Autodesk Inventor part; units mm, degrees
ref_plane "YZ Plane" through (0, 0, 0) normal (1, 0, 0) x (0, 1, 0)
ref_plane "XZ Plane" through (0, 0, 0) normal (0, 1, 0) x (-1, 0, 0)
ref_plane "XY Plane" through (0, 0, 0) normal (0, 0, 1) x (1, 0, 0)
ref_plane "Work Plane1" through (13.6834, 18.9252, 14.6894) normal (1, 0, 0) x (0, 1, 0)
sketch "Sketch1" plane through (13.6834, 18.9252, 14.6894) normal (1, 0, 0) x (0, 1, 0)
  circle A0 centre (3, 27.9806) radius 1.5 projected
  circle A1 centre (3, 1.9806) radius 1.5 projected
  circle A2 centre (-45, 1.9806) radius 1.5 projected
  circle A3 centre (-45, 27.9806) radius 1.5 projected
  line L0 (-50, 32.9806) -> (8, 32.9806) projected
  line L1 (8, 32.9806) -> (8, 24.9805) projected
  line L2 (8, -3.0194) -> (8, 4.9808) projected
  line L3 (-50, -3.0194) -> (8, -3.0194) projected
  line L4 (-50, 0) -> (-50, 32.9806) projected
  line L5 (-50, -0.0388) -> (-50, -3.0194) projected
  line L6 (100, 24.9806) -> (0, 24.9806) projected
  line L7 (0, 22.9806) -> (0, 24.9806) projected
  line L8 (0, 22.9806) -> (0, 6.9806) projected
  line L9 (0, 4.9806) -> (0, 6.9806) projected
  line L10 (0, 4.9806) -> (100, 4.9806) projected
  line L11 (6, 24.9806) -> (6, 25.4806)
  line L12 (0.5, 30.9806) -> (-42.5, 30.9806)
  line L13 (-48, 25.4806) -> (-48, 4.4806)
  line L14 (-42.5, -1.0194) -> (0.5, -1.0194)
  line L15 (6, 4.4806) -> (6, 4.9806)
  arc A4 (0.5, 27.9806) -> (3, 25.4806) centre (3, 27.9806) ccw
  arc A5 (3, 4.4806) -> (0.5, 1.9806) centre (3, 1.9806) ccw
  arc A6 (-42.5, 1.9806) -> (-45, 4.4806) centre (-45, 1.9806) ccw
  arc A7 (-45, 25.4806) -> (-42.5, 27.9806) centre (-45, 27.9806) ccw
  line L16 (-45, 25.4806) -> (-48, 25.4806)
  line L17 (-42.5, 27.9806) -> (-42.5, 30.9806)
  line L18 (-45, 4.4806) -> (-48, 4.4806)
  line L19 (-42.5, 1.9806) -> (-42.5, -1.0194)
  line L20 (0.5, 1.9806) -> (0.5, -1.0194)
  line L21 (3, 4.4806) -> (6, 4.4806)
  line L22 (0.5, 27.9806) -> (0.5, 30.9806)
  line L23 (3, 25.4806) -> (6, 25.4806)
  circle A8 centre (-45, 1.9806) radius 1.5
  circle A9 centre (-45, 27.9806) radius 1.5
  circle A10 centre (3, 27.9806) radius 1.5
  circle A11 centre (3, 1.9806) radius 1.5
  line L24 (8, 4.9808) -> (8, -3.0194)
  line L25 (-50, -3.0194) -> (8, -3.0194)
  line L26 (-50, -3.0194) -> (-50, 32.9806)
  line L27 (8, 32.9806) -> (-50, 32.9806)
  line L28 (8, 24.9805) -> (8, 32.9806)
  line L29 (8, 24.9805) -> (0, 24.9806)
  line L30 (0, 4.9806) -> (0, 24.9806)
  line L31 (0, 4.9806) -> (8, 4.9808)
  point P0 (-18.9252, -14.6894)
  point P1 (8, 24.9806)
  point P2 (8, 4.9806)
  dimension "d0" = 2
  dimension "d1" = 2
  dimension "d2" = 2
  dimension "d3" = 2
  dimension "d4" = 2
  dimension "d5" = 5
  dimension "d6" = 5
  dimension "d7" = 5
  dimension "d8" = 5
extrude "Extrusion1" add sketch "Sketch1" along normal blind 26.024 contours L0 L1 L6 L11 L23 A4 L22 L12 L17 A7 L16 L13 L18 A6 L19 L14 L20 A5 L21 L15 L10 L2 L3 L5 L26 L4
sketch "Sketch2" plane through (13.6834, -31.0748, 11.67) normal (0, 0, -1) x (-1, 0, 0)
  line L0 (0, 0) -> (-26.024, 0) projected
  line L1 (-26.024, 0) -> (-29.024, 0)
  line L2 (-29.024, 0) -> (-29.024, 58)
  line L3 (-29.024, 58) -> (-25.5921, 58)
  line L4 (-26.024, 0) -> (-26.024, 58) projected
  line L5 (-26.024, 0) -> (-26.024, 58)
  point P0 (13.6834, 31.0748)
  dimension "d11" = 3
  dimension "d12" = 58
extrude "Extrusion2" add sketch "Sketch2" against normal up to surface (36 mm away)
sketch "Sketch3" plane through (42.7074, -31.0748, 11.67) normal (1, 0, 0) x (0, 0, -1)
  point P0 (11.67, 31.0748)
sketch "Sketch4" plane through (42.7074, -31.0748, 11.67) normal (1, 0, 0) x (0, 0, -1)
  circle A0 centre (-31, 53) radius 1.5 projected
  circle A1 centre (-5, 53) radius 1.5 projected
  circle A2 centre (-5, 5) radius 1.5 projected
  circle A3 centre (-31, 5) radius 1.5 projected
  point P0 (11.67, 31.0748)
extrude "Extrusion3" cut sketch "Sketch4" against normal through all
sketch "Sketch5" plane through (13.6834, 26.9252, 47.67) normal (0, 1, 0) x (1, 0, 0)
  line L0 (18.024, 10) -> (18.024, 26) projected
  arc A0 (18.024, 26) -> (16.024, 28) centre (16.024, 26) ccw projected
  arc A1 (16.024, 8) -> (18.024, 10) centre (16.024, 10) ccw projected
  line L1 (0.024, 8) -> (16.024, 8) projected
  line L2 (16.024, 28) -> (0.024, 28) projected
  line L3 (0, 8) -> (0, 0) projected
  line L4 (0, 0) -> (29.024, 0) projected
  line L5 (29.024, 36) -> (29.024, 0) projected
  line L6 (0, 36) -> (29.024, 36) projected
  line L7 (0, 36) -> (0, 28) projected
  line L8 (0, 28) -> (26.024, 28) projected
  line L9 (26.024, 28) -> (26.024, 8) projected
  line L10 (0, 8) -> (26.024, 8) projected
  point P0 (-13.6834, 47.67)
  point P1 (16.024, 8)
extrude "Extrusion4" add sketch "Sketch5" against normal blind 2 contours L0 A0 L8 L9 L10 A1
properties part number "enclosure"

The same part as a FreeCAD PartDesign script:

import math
import FreeCAD as App
import Part
import Sketcher

V = App.Vector

doc = App.newDocument("Part")
body = doc.addObject("PartDesign::Body", "Body")

# Sketch on YZ plane
sketch1 = body.newObject("Sketcher::SketchObject", "Sketch")
sketch1.AttachmentSupport = (doc.getObject("YZ_Plane"), [""])
sketch1.MapMode = "FlatFace"
sketch1.AttachmentOffset = App.Placement(V(0, 0, 13.6834), App.Rotation())
sketch1.addGeometry(Part.LineSegment(V(26.9, 47.7, 0), V(-31.1, 47.7, 0)), False)
sketch1.addGeometry(Part.LineSegment(V(-31.1, 47.7, 0), V(-31.1, 11.7, 0)), False)
sketch1.addGeometry(Part.LineSegment(V(-31.1, 11.7, 0), V(26.9, 11.7, 0)), False)
sketch1.addGeometry(Part.LineSegment(V(26.9, 11.7, 0), V(26.9, 19.7, 0)), False)
sketch1.addGeometry(Part.LineSegment(V(26.9, 19.7, 0), V(24.9, 19.7, 0)), False)
sketch1.addGeometry(Part.LineSegment(V(24.9, 19.7, 0), V(24.9, 19.2, 0)), False)
sketch1.addGeometry(Part.LineSegment(V(24.9, 19.2, 0), V(21.9, 19.2, 0)), False)
sketch1.addGeometry(Part.ArcOfCircle(Part.Circle(V(21.9, 16.7, 0), V(0, 0, 1), 2.5), math.radians(90), math.radians(180)), False)
sketch1.addGeometry(Part.LineSegment(V(19.4, 16.7, 0), V(19.4, 13.7, 0)), False)
sketch1.addGeometry(Part.LineSegment(V(19.4, 13.7, 0), V(-23.6, 13.7, 0)), False)
sketch1.addGeometry(Part.LineSegment(V(-23.6, 13.7, 0), V(-23.6, 16.7, 0)), False)
sketch1.addGeometry(Part.ArcOfCircle(Part.Circle(V(-26.1, 16.7, 0), V(0, 0, 1), 2.5), math.radians(0), math.radians(90)), False)
sketch1.addGeometry(Part.LineSegment(V(-26.1, 19.2, 0), V(-29.1, 19.2, 0)), False)
sketch1.addGeometry(Part.LineSegment(V(-29.1, 19.2, 0), V(-29.1, 40.2, 0)), False)
sketch1.addGeometry(Part.LineSegment(V(-29.1, 40.2, 0), V(-26.1, 40.2, 0)), False)
sketch1.addGeometry(Part.ArcOfCircle(Part.Circle(V(-26.1, 42.7, 0), V(0, 0, 1), 2.5), math.radians(-90), math.radians(0)), False)
sketch1.addGeometry(Part.LineSegment(V(-23.6, 42.7, 0), V(-23.6, 45.7, 0)), False)
sketch1.addGeometry(Part.LineSegment(V(-23.6, 45.7, 0), V(19.4, 45.7, 0)), False)
sketch1.addGeometry(Part.LineSegment(V(19.4, 45.7, 0), V(19.4, 42.7, 0)), False)
sketch1.addGeometry(Part.ArcOfCircle(Part.Circle(V(21.9, 42.7, 0), V(0, 0, 1), 2.5), math.radians(180), math.radians(270)), False)
sketch1.addGeometry(Part.LineSegment(V(21.9, 40.2, 0), V(24.9, 40.2, 0)), False)
sketch1.addGeometry(Part.LineSegment(V(24.9, 40.2, 0), V(24.9, 39.7, 0)), False)
sketch1.addGeometry(Part.LineSegment(V(24.9, 39.7, 0), V(26.9, 39.7, 0)), False)
sketch1.addGeometry(Part.LineSegment(V(26.9, 39.7, 0), V(26.9, 47.7, 0)), False)
sketch1.addGeometry(Part.Circle(V(-26.1, 16.7, 0), V(0, 0, 1), 1.5), False)
sketch1.addGeometry(Part.Circle(V(21.9, 16.7, 0), V(0, 0, 1), 1.5), False)
sketch1.addGeometry(Part.Circle(V(-26.1, 42.7, 0), V(0, 0, 1), 1.5), False)
sketch1.addGeometry(Part.Circle(V(21.9, 42.7, 0), V(0, 0, 1), 1.5), False)
sketch1.addConstraint(Sketcher.Constraint("Coincident", 0, 2, 1, 1))
sketch1.addConstraint(Sketcher.Constraint("Coincident", 1, 2, 2, 1))
sketch1.addConstraint(Sketcher.Constraint("Coincident", 2, 2, 3, 1))
sketch1.addConstraint(Sketcher.Constraint("Coincident", 3, 2, 4, 1))
sketch1.addConstraint(Sketcher.Constraint("Coincident", 4, 2, 5, 1))
sketch1.addConstraint(Sketcher.Constraint("Coincident", 5, 2, 6, 1))
sketch1.addConstraint(Sketcher.Constraint("Tangent", 6, 2, 7, 1))
sketch1.addConstraint(Sketcher.Constraint("Tangent", 7, 2, 8, 1))
sketch1.addConstraint(Sketcher.Constraint("Coincident", 8, 2, 9, 1))
sketch1.addConstraint(Sketcher.Constraint("Coincident", 9, 2, 10, 1))
sketch1.addConstraint(Sketcher.Constraint("Tangent", 10, 2, 11, 1))
sketch1.addConstraint(Sketcher.Constraint("Tangent", 11, 2, 12, 1))
sketch1.addConstraint(Sketcher.Constraint("Coincident", 12, 2, 13, 1))
sketch1.addConstraint(Sketcher.Constraint("Coincident", 13, 2, 14, 1))
sketch1.addConstraint(Sketcher.Constraint("Tangent", 14, 2, 15, 1))
sketch1.addConstraint(Sketcher.Constraint("Tangent", 15, 2, 16, 1))
sketch1.addConstraint(Sketcher.Constraint("Coincident", 16, 2, 17, 1))
sketch1.addConstraint(Sketcher.Constraint("Coincident", 17, 2, 18, 1))
sketch1.addConstraint(Sketcher.Constraint("Tangent", 18, 2, 19, 1))
sketch1.addConstraint(Sketcher.Constraint("Tangent", 19, 2, 20, 1))
sketch1.addConstraint(Sketcher.Constraint("Coincident", 20, 2, 21, 1))
sketch1.addConstraint(Sketcher.Constraint("Coincident", 21, 2, 22, 1))
sketch1.addConstraint(Sketcher.Constraint("Coincident", 22, 2, 23, 1))
sketch1.addConstraint(Sketcher.Constraint("Coincident", 23, 2, 0, 1))
sketch1.addConstraint(Sketcher.Constraint("Horizontal", 0))
sketch1.addConstraint(Sketcher.Constraint("Vertical", 1))
sketch1.addConstraint(Sketcher.Constraint("Horizontal", 2))
sketch1.addConstraint(Sketcher.Constraint("Vertical", 3))
sketch1.addConstraint(Sketcher.Constraint("Horizontal", 4))
sketch1.addConstraint(Sketcher.Constraint("Vertical", 5))
sketch1.addConstraint(Sketcher.Constraint("Horizontal", 6))
sketch1.addConstraint(Sketcher.Constraint("Vertical", 8))
sketch1.addConstraint(Sketcher.Constraint("Horizontal", 9))
sketch1.addConstraint(Sketcher.Constraint("Vertical", 10))
sketch1.addConstraint(Sketcher.Constraint("Horizontal", 12))
sketch1.addConstraint(Sketcher.Constraint("Vertical", 13))
sketch1.addConstraint(Sketcher.Constraint("Horizontal", 14))
sketch1.addConstraint(Sketcher.Constraint("Vertical", 16))
sketch1.addConstraint(Sketcher.Constraint("Horizontal", 17))
sketch1.addConstraint(Sketcher.Constraint("Vertical", 18))
sketch1.addConstraint(Sketcher.Constraint("Horizontal", 20))
sketch1.addConstraint(Sketcher.Constraint("Vertical", 21))
sketch1.addConstraint(Sketcher.Constraint("Horizontal", 22))
sketch1.addConstraint(Sketcher.Constraint("Vertical", 23))
sketch1.addConstraint(Sketcher.Constraint("Coincident", 24, 3, 11, 3))
sketch1.addConstraint(Sketcher.Constraint("Coincident", 25, 3, 7, 3))
sketch1.addConstraint(Sketcher.Constraint("Coincident", 26, 3, 15, 3))
sketch1.addConstraint(Sketcher.Constraint("Coincident", 27, 3, 19, 3))
sketch1.addConstraint(Sketcher.Constraint("Equal", 7, 11))
sketch1.addConstraint(Sketcher.Constraint("Equal", 11, 15))
sketch1.addConstraint(Sketcher.Constraint("Equal", 15, 19))
sketch1.addConstraint(Sketcher.Constraint("Equal", 24, 25))
sketch1.addConstraint(Sketcher.Constraint("Equal", 25, 26))
sketch1.addConstraint(Sketcher.Constraint("Equal", 26, 27))
sketch1.addConstraint(Sketcher.Constraint("Horizontal", 7, 3, 11, 3))
sketch1.addConstraint(Sketcher.Constraint("Horizontal", 15, 3, 19, 3))
sketch1.addConstraint(Sketcher.Constraint("Vertical", 11, 3, 15, 3))
sketch1.addConstraint(Sketcher.Constraint("Vertical", 7, 3, 19, 3))
sketch1.addConstraint(Sketcher.Constraint("Vertical", 5, 2, 20, 2))
sketch1.addConstraint(Sketcher.Constraint("Vertical", 3, 2, 22, 2))
sketch1.addConstraint(Sketcher.Constraint("Equal", 6, 12))
sketch1.addConstraint(Sketcher.Constraint("Equal", 20, 8))
sketch1.addConstraint(Sketcher.Constraint("Equal", 10, 16))
sketch1.addConstraint(Sketcher.Constraint("Equal", 5, 21))
sketch1.addConstraint(Sketcher.Constraint("Equal", 3, 23))
sketch1.addConstraint(Sketcher.Constraint("Radius", 7, 2.5))
sketch1.addConstraint(Sketcher.Constraint("DistanceX", 4, 2, 4, 1, 2.0))
sketch1.addConstraint(Sketcher.Constraint("Diameter", 24, 3.0))
sketch1.addConstraint(Sketcher.Constraint("DistanceX", 0, 2, 15, 3, 5.0))
sketch1.addConstraint(Sketcher.Constraint("DistanceY", 15, 3, 0, 2, 5.0))
sketch1.addConstraint(Sketcher.Constraint("DistanceX", 7, 3, 2, 2, 5.0))
sketch1.addConstraint(Sketcher.Constraint("DistanceX", 0, 2, 0, 1, 58.0))
sketch1.addConstraint(Sketcher.Constraint("DistanceY", 1, 2, 1, 1, 36.0))
sketch1.addConstraint(Sketcher.Constraint("DistanceY", 23, 1, 23, 2, 8.0))
sketch1.addConstraint(Sketcher.Constraint("DistanceY", -1, 1, 7, 3, 16.67))
sketch1.addConstraint(Sketcher.Constraint("DistanceX", -1, 1, 7, 3, 21.9252))
pad1 = body.newObject("PartDesign::Pad", "Pad")
pad1.Profile = sketch1
pad1.Length = 26.024

# Sketch on XY plane
sketch2 = body.newObject("Sketcher::SketchObject", "Sketch001")
sketch2.AttachmentSupport = (doc.getObject("XY_Plane"), [""])
sketch2.MapMode = "FlatFace"
sketch2.AttachmentOffset = App.Placement(V(0, 0, 11.67), App.Rotation())
sketch2.addGeometry(Part.LineSegment(V(42.7, -31.1, 0), V(39.7, -31.1, 0)), False)
sketch2.addGeometry(Part.LineSegment(V(39.7, -31.1, 0), V(39.7, 26.9, 0)), False)
sketch2.addGeometry(Part.LineSegment(V(39.7, 26.9, 0), V(42.7, 26.9, 0)), False)
sketch2.addGeometry(Part.LineSegment(V(42.7, 26.9, 0), V(42.7, -31.1, 0)), False)
sketch2.addConstraint(Sketcher.Constraint("Coincident", 0, 2, 1, 1))
sketch2.addConstraint(Sketcher.Constraint("Coincident", 1, 2, 2, 1))
sketch2.addConstraint(Sketcher.Constraint("Coincident", 2, 2, 3, 1))
sketch2.addConstraint(Sketcher.Constraint("Coincident", 3, 2, 0, 1))
sketch2.addConstraint(Sketcher.Constraint("Horizontal", 0))
sketch2.addConstraint(Sketcher.Constraint("Vertical", 1))
sketch2.addConstraint(Sketcher.Constraint("Horizontal", 2))
sketch2.addConstraint(Sketcher.Constraint("Vertical", 3))
sketch2.addConstraint(Sketcher.Constraint("DistanceX", 0, 2, 0, 1, 3.0))
sketch2.addConstraint(Sketcher.Constraint("DistanceY", 1, 1, 1, 2, 58.0))
sketch2.addConstraint(Sketcher.Constraint("DistanceX", -1, 1, 0, 2, 39.7074))
sketch2.addConstraint(Sketcher.Constraint("DistanceY", 0, 2, -1, 1, 31.0748))
pad2 = body.newObject("PartDesign::Pad", "Pad001")
pad2.Profile = sketch2
pad2.Length = 36

# Sketch on YZ plane
sketch3 = body.newObject("Sketcher::SketchObject", "Sketch002")
sketch3.AttachmentSupport = (doc.getObject("YZ_Plane"), [""])
sketch3.MapMode = "FlatFace"
sketch3.AttachmentOffset = App.Placement(V(0, 0, 42.7074), App.Rotation())
sketch3.addGeometry(Part.Circle(V(21.9, 42.7, 0), V(0, 0, 1), 1.5), False)
sketch3.addGeometry(Part.Circle(V(21.9, 16.7, 0), V(0, 0, 1), 1.5), False)
sketch3.addGeometry(Part.Circle(V(-26.1, 16.7, 0), V(0, 0, 1), 1.5), False)
sketch3.addGeometry(Part.Circle(V(-26.1, 42.7, 0), V(0, 0, 1), 1.5), False)
sketch3.addConstraint(Sketcher.Constraint("Equal", 0, 1))
sketch3.addConstraint(Sketcher.Constraint("Equal", 1, 2))
sketch3.addConstraint(Sketcher.Constraint("Equal", 2, 3))
sketch3.addConstraint(Sketcher.Constraint("Horizontal", 1, 3, 2, 3))
sketch3.addConstraint(Sketcher.Constraint("Horizontal", 0, 3, 3, 3))
sketch3.addConstraint(Sketcher.Constraint("Vertical", 0, 3, 1, 3))
sketch3.addConstraint(Sketcher.Constraint("Vertical", 2, 3, 3, 3))
sketch3.addConstraint(Sketcher.Constraint("Diameter", 0, 3.0))
sketch3.addConstraint(Sketcher.Constraint("DistanceY", 1, 3, 0, 3, 26.0))
sketch3.addConstraint(Sketcher.Constraint("DistanceX", 2, 3, 1, 3, 48.0))
sketch3.addConstraint(Sketcher.Constraint("DistanceY", -1, 1, 0, 3, 42.67))
sketch3.addConstraint(Sketcher.Constraint("DistanceX", -1, 1, 0, 3, 21.9252))
pocket1 = body.newObject("PartDesign::Pocket", "Pocket")
pocket1.Profile = sketch3
pocket1.Type = "ThroughAll"

# Sketch on XZ plane
sketch4 = body.newObject("Sketcher::SketchObject", "Sketch003")
sketch4.AttachmentSupport = (doc.getObject("XZ_Plane"), [""])
sketch4.MapMode = "FlatFace"
sketch4.AttachmentOffset = App.Placement(V(0, 0, -26.9252), App.Rotation())
sketch4.addGeometry(Part.LineSegment(V(31.7, 21.7, 0), V(31.7, 37.7, 0)), False)
sketch4.addGeometry(Part.ArcOfCircle(Part.Circle(V(29.7, 37.7, 0), V(0, 0, 1), 2), math.radians(0), math.radians(90)), False)
sketch4.addGeometry(Part.LineSegment(V(29.7, 39.7, 0), V(39.7, 39.7, 0)), False)
sketch4.addGeometry(Part.LineSegment(V(39.7, 39.7, 0), V(39.7, 19.7, 0)), False)
sketch4.addGeometry(Part.LineSegment(V(39.7, 19.7, 0), V(29.7, 19.7, 0)), False)
sketch4.addGeometry(Part.ArcOfCircle(Part.Circle(V(29.7, 21.7, 0), V(0, 0, 1), 2), math.radians(-90), math.radians(0)), False)
sketch4.addConstraint(Sketcher.Constraint("Tangent", 0, 2, 1, 1))
sketch4.addConstraint(Sketcher.Constraint("Tangent", 1, 2, 2, 1))
sketch4.addConstraint(Sketcher.Constraint("Coincident", 2, 2, 3, 1))
sketch4.addConstraint(Sketcher.Constraint("Coincident", 3, 2, 4, 1))
sketch4.addConstraint(Sketcher.Constraint("Tangent", 4, 2, 5, 1))
sketch4.addConstraint(Sketcher.Constraint("Tangent", 5, 2, 0, 1))
sketch4.addConstraint(Sketcher.Constraint("Vertical", 0))
sketch4.addConstraint(Sketcher.Constraint("Horizontal", 2))
sketch4.addConstraint(Sketcher.Constraint("Vertical", 3))
sketch4.addConstraint(Sketcher.Constraint("Horizontal", 4))
sketch4.addConstraint(Sketcher.Constraint("Equal", 1, 5))
sketch4.addConstraint(Sketcher.Constraint("Radius", 1, 2.0))
sketch4.addConstraint(Sketcher.Constraint("DistanceX", 2, 1, 2, 2, 10.0))
sketch4.addConstraint(Sketcher.Constraint("DistanceY", 0, 1, 0, 2, 16.0))
sketch4.addConstraint(Sketcher.Constraint("DistanceY", -1, 1, 1, 3, 37.67))
sketch4.addConstraint(Sketcher.Constraint("DistanceX", -1, 1, 1, 3, 29.7074))
pad3 = body.newObject("PartDesign::Pad", "Pad002")
pad3.Profile = sketch4
pad3.Length = 2

doc.recompute()
